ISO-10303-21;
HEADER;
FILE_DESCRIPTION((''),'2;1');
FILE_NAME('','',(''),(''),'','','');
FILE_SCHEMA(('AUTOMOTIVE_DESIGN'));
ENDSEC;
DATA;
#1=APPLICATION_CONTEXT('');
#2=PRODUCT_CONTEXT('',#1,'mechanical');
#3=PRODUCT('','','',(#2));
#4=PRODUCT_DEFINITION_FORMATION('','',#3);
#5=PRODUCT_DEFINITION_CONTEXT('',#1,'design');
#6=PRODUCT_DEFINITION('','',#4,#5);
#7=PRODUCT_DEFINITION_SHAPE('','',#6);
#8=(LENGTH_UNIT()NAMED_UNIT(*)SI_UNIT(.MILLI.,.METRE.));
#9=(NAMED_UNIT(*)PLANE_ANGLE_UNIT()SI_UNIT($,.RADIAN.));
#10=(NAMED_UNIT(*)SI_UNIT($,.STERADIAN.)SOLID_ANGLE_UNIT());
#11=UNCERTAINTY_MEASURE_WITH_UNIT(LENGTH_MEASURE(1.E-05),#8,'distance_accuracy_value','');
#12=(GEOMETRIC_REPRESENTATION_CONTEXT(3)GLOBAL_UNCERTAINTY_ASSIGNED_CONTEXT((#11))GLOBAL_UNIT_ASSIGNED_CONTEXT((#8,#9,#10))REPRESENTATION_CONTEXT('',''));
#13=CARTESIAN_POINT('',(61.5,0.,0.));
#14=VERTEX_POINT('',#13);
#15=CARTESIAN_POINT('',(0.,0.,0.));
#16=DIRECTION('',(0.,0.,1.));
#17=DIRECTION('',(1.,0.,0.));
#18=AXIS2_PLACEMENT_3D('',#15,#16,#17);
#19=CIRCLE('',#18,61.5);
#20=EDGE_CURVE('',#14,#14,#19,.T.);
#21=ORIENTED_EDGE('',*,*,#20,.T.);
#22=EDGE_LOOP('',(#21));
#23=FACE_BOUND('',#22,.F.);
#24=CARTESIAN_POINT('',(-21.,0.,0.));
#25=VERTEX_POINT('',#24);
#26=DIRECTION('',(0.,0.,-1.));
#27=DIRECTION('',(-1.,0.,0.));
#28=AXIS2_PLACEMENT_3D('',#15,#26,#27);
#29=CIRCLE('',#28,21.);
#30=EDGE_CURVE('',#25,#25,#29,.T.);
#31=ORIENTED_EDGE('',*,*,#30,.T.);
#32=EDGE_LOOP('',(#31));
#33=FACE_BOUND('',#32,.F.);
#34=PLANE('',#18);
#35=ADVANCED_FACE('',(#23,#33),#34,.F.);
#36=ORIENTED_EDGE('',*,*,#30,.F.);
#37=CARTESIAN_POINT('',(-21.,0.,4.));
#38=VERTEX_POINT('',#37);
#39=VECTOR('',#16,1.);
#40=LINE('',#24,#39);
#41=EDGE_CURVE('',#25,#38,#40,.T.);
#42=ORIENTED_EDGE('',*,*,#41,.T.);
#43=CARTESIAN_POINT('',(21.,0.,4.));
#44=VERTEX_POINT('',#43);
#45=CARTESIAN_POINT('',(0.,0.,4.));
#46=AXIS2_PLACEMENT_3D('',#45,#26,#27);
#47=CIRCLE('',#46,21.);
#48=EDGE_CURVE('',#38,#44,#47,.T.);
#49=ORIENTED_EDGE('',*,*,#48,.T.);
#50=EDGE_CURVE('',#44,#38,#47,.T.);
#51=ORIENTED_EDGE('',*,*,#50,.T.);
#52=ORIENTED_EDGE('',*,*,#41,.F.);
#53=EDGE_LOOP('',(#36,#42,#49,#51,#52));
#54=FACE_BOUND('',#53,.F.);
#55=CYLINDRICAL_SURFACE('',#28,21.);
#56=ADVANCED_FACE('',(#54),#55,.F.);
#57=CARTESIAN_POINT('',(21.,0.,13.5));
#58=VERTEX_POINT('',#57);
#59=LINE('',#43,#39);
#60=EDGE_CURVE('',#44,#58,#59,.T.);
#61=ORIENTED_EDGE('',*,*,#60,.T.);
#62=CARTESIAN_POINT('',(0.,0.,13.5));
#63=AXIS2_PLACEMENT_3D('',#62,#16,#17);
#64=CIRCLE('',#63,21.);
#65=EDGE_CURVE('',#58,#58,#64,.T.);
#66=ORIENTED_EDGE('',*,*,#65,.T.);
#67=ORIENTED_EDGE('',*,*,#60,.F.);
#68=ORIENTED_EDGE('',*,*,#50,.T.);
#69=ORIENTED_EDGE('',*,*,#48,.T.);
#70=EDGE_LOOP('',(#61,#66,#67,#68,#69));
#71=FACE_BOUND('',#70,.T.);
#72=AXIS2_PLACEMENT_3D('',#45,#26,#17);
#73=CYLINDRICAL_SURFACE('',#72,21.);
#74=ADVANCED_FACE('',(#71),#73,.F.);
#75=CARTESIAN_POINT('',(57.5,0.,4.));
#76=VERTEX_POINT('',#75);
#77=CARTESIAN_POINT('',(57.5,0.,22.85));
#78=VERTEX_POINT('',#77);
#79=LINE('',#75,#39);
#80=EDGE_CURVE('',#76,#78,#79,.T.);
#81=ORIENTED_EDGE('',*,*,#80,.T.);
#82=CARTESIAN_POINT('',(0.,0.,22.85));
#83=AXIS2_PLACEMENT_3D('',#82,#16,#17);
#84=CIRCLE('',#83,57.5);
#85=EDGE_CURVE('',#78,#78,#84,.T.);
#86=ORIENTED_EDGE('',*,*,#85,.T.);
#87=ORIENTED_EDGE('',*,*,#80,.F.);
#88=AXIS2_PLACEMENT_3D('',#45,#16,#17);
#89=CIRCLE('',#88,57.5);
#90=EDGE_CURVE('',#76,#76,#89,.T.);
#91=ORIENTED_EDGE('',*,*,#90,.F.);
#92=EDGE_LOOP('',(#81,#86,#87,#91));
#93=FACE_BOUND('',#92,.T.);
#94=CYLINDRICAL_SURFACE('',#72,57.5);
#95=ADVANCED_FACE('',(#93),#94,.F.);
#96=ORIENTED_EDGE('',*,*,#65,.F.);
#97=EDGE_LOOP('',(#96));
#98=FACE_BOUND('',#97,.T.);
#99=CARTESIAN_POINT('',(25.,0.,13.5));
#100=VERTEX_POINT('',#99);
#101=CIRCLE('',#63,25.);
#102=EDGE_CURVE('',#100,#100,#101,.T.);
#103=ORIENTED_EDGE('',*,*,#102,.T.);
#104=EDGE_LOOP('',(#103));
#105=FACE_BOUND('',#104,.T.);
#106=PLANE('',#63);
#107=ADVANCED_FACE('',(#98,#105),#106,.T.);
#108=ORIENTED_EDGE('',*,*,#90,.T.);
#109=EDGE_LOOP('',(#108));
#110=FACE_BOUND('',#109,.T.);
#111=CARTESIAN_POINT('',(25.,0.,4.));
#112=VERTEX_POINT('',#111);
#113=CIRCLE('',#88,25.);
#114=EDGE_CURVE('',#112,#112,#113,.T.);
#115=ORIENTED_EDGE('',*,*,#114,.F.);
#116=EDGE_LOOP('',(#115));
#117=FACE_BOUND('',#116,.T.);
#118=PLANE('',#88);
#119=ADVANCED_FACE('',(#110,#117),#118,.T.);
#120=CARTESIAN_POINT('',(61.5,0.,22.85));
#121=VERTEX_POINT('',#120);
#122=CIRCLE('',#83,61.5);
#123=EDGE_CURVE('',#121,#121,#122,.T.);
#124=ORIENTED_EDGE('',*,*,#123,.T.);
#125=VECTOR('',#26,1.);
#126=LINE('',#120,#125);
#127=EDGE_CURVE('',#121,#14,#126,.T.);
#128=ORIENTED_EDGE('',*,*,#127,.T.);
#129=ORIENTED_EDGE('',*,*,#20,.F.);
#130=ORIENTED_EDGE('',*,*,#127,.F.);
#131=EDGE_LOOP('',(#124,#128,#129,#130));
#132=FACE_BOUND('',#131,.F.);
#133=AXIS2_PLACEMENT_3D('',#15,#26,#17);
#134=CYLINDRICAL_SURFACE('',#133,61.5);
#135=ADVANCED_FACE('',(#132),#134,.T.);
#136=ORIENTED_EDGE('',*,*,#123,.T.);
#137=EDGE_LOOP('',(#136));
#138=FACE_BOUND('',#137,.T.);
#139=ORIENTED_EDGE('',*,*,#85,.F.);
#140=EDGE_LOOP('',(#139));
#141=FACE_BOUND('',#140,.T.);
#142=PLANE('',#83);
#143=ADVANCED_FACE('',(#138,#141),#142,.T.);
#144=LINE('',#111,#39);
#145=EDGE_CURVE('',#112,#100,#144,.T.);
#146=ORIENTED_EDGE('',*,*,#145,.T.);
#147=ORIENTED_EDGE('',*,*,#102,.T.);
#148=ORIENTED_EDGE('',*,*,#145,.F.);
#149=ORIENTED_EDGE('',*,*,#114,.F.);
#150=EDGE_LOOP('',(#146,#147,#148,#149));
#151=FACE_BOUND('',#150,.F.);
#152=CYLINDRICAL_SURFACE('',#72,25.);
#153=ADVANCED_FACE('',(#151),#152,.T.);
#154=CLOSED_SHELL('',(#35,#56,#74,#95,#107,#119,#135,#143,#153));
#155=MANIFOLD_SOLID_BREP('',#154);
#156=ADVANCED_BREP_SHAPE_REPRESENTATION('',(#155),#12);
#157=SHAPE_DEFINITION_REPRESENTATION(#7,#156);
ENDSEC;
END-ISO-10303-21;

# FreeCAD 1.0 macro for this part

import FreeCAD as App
import Part
import Sketcher

V = App.Vector

doc = App.newDocument("Part")
params = doc.addObject("Spreadsheet::Sheet", "Params")
for row, (alias, value) in enumerate([
    ("sketch1_diameter", "123 mm"),
    ("pad1_length", "4 mm"),
    ("sketch2_diameter", "115 mm"),
    ("sketch2_diameter2", "123 mm"),
    ("pad2_length", "18.85 mm"),
    ("sketch3_diameter", "42 mm"),
    ("sketch4_diameter", "50 mm"),
    ("sketch4_diameter2", "42 mm"),
    ("pad3_length", "9.5 mm"),
], start=1):
    params.set(f"A{row}", alias)
    params.set(f"B{row}", "=" + value)
    params.setAlias(f"B{row}", alias)

body = doc.addObject("PartDesign::Body", "Body")

# Sketch on XY plane
sketch1 = doc.addObject("Sketcher::SketchObject", "Sketch")
body.addObject(sketch1)
sketch1.AttachmentSupport = (doc.XY_Plane, [""])
sketch1.MapMode = "FlatFace"
sketch1.addGeometry(Part.Circle(V(0, 0, 0), V(0, 0, 1), 61.5), False)
sketch1.addConstraint([
    Sketcher.Constraint("Coincident", 0, 3, -1, 1),
    Sketcher.Constraint("Diameter", 0, 123.0),
])
sketch1.setExpression("Constraints[1]", "Params.sketch1_diameter")
pad1 = doc.addObject("PartDesign::Pad", "Pad")
body.addObject(pad1)
pad1.Profile = sketch1
pad1.setExpression("Length", "Params.pad1_length")

# Sketch on XY plane
sketch2 = doc.addObject("Sketcher::SketchObject", "Sketch001")
body.addObject(sketch2)
sketch2.AttachmentSupport = (doc.XY_Plane, [""])
sketch2.MapMode = "FlatFace"
sketch2.AttachmentOffset = App.Placement(V(0, 0, 4), App.Rotation())
sketch2.addGeometry([
    Part.Circle(V(0, 0, 0), V(0, 0, 1), 61.5),
    Part.Circle(V(0, 0, 0), V(0, 0, 1), 57.5),
], False)
sketch2.addConstraint([
    Sketcher.Constraint("Coincident", 0, 3, -1, 1),
    Sketcher.Constraint("Coincident", 1, 3, -1, 1),
    Sketcher.Constraint("Diameter", 1, 115.0),
    Sketcher.Constraint("Diameter", 0, 123.0),
])
sketch2.setExpression("Constraints[2]", "Params.sketch2_diameter")
sketch2.setExpression("Constraints[3]", "Params.sketch2_diameter2")
pad2 = doc.addObject("PartDesign::Pad", "Pad001")
body.addObject(pad2)
pad2.Profile = sketch2
pad2.setExpression("Length", "Params.pad2_length")

# Sketch on XY plane
sketch3 = doc.addObject("Sketcher::SketchObject", "Sketch002")
body.addObject(sketch3)
sketch3.AttachmentSupport = (doc.XY_Plane, [""])
sketch3.MapMode = "FlatFace"
sketch3.addGeometry(Part.Circle(V(0, 0, 0), V(0, 0, 1), 21), False)
sketch3.addConstraint([
    Sketcher.Constraint("Coincident", 0, 3, -1, 1),
    Sketcher.Constraint("Diameter", 0, 42.0),
])
sketch3.setExpression("Constraints[1]", "Params.sketch3_diameter")
pocket1 = doc.addObject("PartDesign::Pocket", "Pocket")
body.addObject(pocket1)
pocket1.Profile = sketch3
pocket1.Type = "ThroughAll"
pocket1.Reversed = True

# Sketch on XY plane
sketch4 = doc.addObject("Sketcher::SketchObject", "Sketch003")
body.addObject(sketch4)
sketch4.AttachmentSupport = (doc.XY_Plane, [""])
sketch4.MapMode = "FlatFace"
sketch4.AttachmentOffset = App.Placement(V(0, 0, 4), App.Rotation())
sketch4.addGeometry([
    Part.Circle(V(0, 0, 0), V(0, 0, 1), 25),
    Part.Circle(V(0, 0, 0), V(0, 0, 1), 21),
], False)
sketch4.addConstraint([
    Sketcher.Constraint("Coincident", 0, 3, -1, 1),
    Sketcher.Constraint("Coincident", 1, 3, -1, 1),
    Sketcher.Constraint("Diameter", 0, 50.0),
    Sketcher.Constraint("Diameter", 1, 42.0),
])
sketch4.setExpression("Constraints[2]", "Params.sketch4_diameter")
sketch4.setExpression("Constraints[3]", "Params.sketch4_diameter2")
pad3 = doc.addObject("PartDesign::Pad", "Pad002")
body.addObject(pad3)
pad3.Profile = sketch4
pad3.setExpression("Length", "Params.pad3_length")

doc.recompute()
